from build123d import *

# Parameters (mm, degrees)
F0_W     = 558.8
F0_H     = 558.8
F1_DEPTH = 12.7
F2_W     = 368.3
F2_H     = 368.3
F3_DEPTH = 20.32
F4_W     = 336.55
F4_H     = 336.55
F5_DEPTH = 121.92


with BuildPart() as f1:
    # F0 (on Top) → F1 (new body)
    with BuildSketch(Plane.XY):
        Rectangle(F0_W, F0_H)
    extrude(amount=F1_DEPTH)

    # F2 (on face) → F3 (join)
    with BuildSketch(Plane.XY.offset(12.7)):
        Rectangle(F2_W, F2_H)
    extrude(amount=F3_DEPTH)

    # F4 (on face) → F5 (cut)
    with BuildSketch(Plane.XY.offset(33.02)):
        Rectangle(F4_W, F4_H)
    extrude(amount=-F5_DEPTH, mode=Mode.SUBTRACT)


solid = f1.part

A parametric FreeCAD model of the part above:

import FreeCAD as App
import Part
import Sketcher
Q = App.Units.Quantity


def add_polygon(sketch, points):
    """Adds a closed chain of lines whose ends are joined by coincident constraints."""
    first, n = sketch.GeometryCount, len(points)
    for a, b in zip(points, points[1:] + points[:1]):
        sketch.addGeometry(Part.LineSegment(App.Vector(*a, 0), App.Vector(*b, 0)), False)
    for i in range(n):
        sketch.addConstraint(Sketcher.Constraint("Coincident", first + i, 2, first + (i + 1) % n, 1))

doc = App.newDocument("Part")
body = doc.addObject("PartDesign::Body", "Body")

sketch1 = body.newObject("Sketcher::SketchObject", "Sketch")
sketch1.AttachmentSupport = (doc.getObject("XY_Plane"), [""])
sketch1.MapMode = "FlatFace"
add_polygon(sketch1, [(-279, 279), (-279, -279), (279, -279), (279, 279)])
sketch1.addConstraint(Sketcher.Constraint("Vertical", 0))
sketch1.addConstraint(Sketcher.Constraint("Horizontal", 1))
sketch1.addConstraint(Sketcher.Constraint("Vertical", 2))
sketch1.addConstraint(Sketcher.Constraint("Horizontal", 3))
sketch1.addConstraint(Sketcher.Constraint("Symmetric", 0, 2, 2, 2, -1, 1))
sketch1.addConstraint(Sketcher.Constraint("Equal", 3, 0))
sketch1.addConstraint(Sketcher.Constraint("DistanceX", 1, 1, 1, 2, Q("22 in")))
pad1 = body.newObject("PartDesign::Pad", "Pad")
pad1.Profile = sketch1
pad1.Length = Q("0.5 in")

sketch2 = body.newObject("Sketcher::SketchObject", "Sketch001")
sketch2.AttachmentSupport = (doc.getObject("XY_Plane"), [""])
sketch2.MapMode = "FlatFace"
sketch2.AttachmentOffset = App.Placement(App.Vector(0, 0, 0.5 * 25.4), App.Rotation())
add_polygon(sketch2, [(-184, 184), (-184, -184), (184, -184), (184, 184)])
sketch2.addConstraint(Sketcher.Constraint("Vertical", 0))
sketch2.addConstraint(Sketcher.Constraint("Horizontal", 1))
sketch2.addConstraint(Sketcher.Constraint("Vertical", 2))
sketch2.addConstraint(Sketcher.Constraint("Horizontal", 3))
sketch2.addConstraint(Sketcher.Constraint("Symmetric", 0, 2, 2, 2, -1, 1))
sketch2.addConstraint(Sketcher.Constraint("Equal", 3, 0))
sketch2.addConstraint(Sketcher.Constraint("DistanceX", 1, 1, 1, 2, Q("14.5 in")))
pad2 = body.newObject("PartDesign::Pad", "Pad001")
pad2.Profile = sketch2
pad2.Length = Q("0.8 in")

sketch3 = body.newObject("Sketcher::SketchObject", "Sketch002")
sketch3.AttachmentSupport = (doc.getObject("XY_Plane"), [""])
sketch3.MapMode = "FlatFace"
sketch3.AttachmentOffset = App.Placement(App.Vector(0, 0, 1.3 * 25.4), App.Rotation())
add_polygon(sketch3, [(-168, 168), (-168, -168), (168, -168), (168, 168)])
sketch3.addConstraint(Sketcher.Constraint("Vertical", 0))
sketch3.addConstraint(Sketcher.Constraint("Horizontal", 1))
sketch3.addConstraint(Sketcher.Constraint("Vertical", 2))
sketch3.addConstraint(Sketcher.Constraint("Horizontal", 3))
sketch3.addConstraint(Sketcher.Constraint("Symmetric", 0, 2, 2, 2, -1, 1))
sketch3.addConstraint(Sketcher.Constraint("Equal", 3, 0))
sketch3.addConstraint(Sketcher.Constraint("DistanceX", 1, 1, 1, 2, Q("13.25 in")))
pocket1 = body.newObject("PartDesign::Pocket", "Pocket")
pocket1.Profile = sketch3
pocket1.Length = Q("4.8 in")

doc.recompute()
